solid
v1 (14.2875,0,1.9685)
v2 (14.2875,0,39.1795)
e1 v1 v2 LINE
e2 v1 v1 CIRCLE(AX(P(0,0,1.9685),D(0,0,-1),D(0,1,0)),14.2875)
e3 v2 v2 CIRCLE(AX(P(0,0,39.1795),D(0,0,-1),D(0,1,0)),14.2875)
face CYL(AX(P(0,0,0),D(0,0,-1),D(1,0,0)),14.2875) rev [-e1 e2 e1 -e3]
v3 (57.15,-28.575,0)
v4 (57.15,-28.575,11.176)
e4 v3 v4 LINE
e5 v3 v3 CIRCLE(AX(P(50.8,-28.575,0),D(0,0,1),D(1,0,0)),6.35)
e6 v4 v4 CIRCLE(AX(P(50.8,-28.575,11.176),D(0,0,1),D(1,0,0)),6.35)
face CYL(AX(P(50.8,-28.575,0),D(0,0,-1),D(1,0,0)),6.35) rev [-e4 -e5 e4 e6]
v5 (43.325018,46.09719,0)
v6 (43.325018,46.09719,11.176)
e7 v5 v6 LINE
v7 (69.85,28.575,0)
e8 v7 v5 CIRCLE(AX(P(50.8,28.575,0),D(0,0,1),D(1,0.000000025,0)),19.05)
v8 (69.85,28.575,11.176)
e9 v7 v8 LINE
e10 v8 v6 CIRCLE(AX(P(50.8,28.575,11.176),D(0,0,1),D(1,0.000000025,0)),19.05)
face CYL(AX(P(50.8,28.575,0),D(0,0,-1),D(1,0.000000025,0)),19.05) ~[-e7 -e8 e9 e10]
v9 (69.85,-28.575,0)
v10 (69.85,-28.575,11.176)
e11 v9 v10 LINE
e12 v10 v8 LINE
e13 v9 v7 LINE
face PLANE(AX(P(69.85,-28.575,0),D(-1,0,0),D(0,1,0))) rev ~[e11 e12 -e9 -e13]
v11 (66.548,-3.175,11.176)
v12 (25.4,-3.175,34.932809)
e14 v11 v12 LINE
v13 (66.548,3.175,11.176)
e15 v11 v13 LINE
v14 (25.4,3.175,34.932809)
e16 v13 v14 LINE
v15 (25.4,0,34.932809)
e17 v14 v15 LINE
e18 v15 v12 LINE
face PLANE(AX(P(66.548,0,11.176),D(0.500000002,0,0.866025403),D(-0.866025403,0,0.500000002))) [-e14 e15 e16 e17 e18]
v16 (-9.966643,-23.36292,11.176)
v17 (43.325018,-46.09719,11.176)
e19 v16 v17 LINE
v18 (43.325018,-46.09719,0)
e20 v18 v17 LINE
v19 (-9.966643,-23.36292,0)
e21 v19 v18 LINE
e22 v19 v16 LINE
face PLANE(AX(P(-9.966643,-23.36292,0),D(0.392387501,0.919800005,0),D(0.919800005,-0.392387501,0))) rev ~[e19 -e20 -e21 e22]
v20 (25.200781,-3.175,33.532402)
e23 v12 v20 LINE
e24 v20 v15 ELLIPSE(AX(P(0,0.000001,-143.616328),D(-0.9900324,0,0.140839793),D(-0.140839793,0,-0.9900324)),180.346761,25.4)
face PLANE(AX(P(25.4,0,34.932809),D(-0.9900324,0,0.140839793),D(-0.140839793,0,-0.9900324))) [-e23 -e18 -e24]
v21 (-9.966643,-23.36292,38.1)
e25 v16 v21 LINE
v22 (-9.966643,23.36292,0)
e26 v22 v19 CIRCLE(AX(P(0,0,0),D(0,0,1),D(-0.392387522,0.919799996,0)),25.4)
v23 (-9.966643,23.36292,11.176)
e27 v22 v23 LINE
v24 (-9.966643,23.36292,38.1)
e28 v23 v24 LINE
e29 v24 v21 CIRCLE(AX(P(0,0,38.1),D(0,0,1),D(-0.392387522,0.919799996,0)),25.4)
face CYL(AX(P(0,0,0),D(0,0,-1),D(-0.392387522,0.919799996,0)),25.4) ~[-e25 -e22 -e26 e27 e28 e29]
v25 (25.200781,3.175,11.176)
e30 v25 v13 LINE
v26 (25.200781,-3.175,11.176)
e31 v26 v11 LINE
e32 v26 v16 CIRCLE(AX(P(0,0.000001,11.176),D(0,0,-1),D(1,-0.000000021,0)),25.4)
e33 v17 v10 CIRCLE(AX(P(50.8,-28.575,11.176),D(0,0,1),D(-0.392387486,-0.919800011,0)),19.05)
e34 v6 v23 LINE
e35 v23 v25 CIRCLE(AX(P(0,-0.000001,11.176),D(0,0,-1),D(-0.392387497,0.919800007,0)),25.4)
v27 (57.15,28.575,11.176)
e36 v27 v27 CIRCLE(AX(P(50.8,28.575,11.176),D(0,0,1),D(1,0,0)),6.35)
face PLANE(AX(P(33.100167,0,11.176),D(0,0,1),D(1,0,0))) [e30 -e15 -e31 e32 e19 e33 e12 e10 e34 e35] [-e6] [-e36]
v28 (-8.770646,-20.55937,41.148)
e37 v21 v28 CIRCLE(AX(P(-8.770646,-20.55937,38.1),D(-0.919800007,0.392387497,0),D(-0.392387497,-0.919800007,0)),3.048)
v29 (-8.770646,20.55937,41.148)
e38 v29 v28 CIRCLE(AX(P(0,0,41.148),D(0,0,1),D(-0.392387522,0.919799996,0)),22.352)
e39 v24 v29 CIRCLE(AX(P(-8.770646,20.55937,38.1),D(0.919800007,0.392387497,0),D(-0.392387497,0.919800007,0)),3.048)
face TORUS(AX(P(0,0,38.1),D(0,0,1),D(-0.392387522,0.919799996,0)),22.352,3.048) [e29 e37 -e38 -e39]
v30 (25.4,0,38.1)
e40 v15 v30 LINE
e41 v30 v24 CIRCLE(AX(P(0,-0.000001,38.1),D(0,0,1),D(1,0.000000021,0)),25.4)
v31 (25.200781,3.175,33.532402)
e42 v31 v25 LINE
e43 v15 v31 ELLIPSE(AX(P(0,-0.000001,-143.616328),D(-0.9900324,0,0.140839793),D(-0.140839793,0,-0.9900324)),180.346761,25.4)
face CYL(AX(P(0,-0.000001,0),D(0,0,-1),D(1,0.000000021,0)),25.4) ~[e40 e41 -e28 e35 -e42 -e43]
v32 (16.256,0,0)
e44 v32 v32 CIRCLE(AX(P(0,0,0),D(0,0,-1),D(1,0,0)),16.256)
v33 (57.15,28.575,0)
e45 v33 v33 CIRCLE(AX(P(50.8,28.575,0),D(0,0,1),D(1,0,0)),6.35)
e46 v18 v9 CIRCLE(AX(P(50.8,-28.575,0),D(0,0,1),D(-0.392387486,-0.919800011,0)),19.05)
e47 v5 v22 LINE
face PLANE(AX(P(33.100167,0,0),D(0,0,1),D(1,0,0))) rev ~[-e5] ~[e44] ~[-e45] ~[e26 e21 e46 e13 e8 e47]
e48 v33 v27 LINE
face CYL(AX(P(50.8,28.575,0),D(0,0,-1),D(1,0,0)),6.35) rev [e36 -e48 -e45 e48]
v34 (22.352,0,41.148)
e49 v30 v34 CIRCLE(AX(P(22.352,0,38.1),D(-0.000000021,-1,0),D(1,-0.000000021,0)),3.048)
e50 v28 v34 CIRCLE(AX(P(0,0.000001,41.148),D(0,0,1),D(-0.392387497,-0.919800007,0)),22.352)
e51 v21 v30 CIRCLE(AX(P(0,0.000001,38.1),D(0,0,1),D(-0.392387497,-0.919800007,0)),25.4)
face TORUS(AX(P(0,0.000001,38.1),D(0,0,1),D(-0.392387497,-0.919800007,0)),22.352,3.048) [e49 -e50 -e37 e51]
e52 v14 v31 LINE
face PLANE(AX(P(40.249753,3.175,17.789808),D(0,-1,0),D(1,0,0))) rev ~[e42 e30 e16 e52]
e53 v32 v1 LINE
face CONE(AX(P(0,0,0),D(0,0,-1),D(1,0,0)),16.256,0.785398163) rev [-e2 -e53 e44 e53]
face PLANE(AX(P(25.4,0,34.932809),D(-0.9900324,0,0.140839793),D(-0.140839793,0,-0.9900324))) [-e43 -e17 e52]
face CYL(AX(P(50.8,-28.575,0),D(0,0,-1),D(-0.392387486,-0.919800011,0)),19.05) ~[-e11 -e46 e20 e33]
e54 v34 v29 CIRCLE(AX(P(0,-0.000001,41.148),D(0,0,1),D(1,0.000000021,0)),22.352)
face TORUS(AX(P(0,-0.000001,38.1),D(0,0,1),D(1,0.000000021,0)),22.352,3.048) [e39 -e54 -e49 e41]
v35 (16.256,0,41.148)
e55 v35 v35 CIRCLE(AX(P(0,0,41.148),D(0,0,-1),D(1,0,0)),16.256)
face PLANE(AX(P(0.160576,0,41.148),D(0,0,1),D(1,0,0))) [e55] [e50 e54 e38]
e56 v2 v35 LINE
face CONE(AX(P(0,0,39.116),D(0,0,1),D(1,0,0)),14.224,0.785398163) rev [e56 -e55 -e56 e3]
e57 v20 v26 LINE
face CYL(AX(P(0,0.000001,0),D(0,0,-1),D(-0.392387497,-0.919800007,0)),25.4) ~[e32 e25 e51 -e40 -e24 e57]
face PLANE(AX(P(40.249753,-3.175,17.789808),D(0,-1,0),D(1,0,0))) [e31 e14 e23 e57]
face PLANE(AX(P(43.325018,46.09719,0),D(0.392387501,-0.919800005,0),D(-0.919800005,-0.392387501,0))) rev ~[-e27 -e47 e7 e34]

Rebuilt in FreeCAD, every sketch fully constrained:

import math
import FreeCAD as App
import Part
import Sketcher
from FreeCAD import Vector
Q = App.Units.Quantity


def edges_at(feature, points):
    """Names of the edges that pass closest to the given points."""
    edges = feature.Shape.Edges
    near = lambda p: min(range(len(edges)), key=lambda i: edges[i].distToShape(Part.Vertex(*p))[0])
    return sorted({f"Edge{near(p) + 1}" for p in points})

doc = App.newDocument("Part")
body = doc.addObject("PartDesign::Body", "Body")

sketch1 = body.newObject("Sketcher::SketchObject", "Sketch")
sketch1.AttachmentSupport = (doc.getObject("XY_Plane"), [""])
sketch1.MapMode = "FlatFace"
sketch1.addGeometry([
    Part.ArcOfCircle(Part.Circle(Vector(0, 0, 0), Vector(0, 0, 1), 25), math.radians(-113), math.radians(0)),
    Part.ArcOfCircle(Part.Circle(Vector(0, 0, 0), Vector(0, 0, 1), 25), math.radians(0), math.radians(113)),
    Part.ArcOfCircle(Part.Circle(Vector(0, 0, 0), Vector(0, 0, 1), 25), math.radians(113), math.radians(247)),
    Part.Circle(Vector(0, 0, 0), Vector(0, 0, 1), 14),
], False)
sketch1.addConstraint([
    Sketcher.Constraint("Tangent", 0, 2, 1, 1),
    Sketcher.Constraint("Tangent", 1, 2, 2, 1),
    Sketcher.Constraint("Tangent", 2, 2, 0, 1),
    Sketcher.Constraint("Coincident", 0, 3, -1, 1),
    Sketcher.Constraint("Coincident", 3, 3, -1, 1),
    Sketcher.Constraint("PointOnObject", 0, 2, -1),
    Sketcher.Constraint("Vertical", 1, 2, 2, 2),
    Sketcher.Constraint("Radius", 0, Q("1 in")),
    Sketcher.Constraint("Diameter", 3, Q("1.125 in")),
    Sketcher.Constraint("DistanceY", -1, 1, 1, 2, Q("0.9198 in")),
])
pad1 = body.newObject("PartDesign::Pad", "Pad")
pad1.Profile = sketch1
pad1.Length = Q("1.62 in")

sketch2 = body.newObject("Sketcher::SketchObject", "Sketch001")
sketch2.AttachmentSupport = (doc.getObject("XY_Plane"), [""])
sketch2.MapMode = "FlatFace"
sketch2.addGeometry([
    Part.ArcOfCircle(Part.Circle(Vector(0, 0, 0), Vector(0, 0, 1), 25), math.radians(0), math.radians(113)),
    Part.ArcOfCircle(Part.Circle(Vector(0, 0, 0), Vector(0, 0, 1), 25), math.radians(-113), math.radians(0)),
    Part.LineSegment(Vector(-10, -23, 0), Vector(43, -46, 0)),
    Part.ArcOfCircle(Part.Circle(Vector(51, -29, 0), Vector(0, 0, 1), 19), math.radians(-113), math.radians(0)),
    Part.LineSegment(Vector(70, -29, 0), Vector(70, 29, 0)),
    Part.ArcOfCircle(Part.Circle(Vector(51, 29, 0), Vector(0, 0, 1), 19), math.radians(0), math.radians(113)),
    Part.LineSegment(Vector(43, 46, 0), Vector(-10, 23, 0)),
    Part.Circle(Vector(51, -29, 0), Vector(0, 0, 1), 6),
    Part.Circle(Vector(51, 29, 0), Vector(0, 0, 1), 6),
], False)
sketch2.addConstraint([
    Sketcher.Constraint("Tangent", 0, 1, 1, 2),
    Sketcher.Constraint("Tangent", 1, 1, 2, 1),
    Sketcher.Constraint("Tangent", 2, 2, 3, 1),
    Sketcher.Constraint("Tangent", 3, 2, 4, 1),
    Sketcher.Constraint("Tangent", 4, 2, 5, 1),
    Sketcher.Constraint("Tangent", 5, 2, 6, 1),
    Sketcher.Constraint("Tangent", 6, 2, 0, 2),
    Sketcher.Constraint("Vertical", 4),
    Sketcher.Constraint("Coincident", 0, 3, -1, 1),
    Sketcher.Constraint("Coincident", 7, 3, 3, 3),
    Sketcher.Constraint("Coincident", 8, 3, 5, 3),
    Sketcher.Constraint("Equal", 0, 1),
    Sketcher.Constraint("Equal", 3, 5),
    Sketcher.Constraint("Equal", 7, 8),
    Sketcher.Constraint("PointOnObject", 0, 1, -1),
    Sketcher.Constraint("Vertical", 2, 2, 5, 2),
    Sketcher.Constraint("Radius", 0, Q("1 in")),
    Sketcher.Constraint("Diameter", 7, Q("0.5 in")),
    Sketcher.Constraint("Radius", 3, Q("0.75 in")),
    Sketcher.Constraint("DistanceX", -1, 1, 3, 3, Q("2 in")),
    Sketcher.Constraint("DistanceY", 4, 1, 4, 2, Q("2.25 in")),
])
pad2 = body.newObject("PartDesign::Pad", "Pad001")
pad2.Profile = sketch2
pad2.Length = Q("0.44 in")

sketch3 = body.newObject("Sketcher::SketchObject", "Sketch002")
sketch3.AttachmentSupport = (doc.getObject("XZ_Plane"), [""])
sketch3.MapMode = "FlatFace"
sketch3.addGeometry([
    Part.LineSegment(Vector(0, 41.1, 0), Vector(0, 0, 0)),
    Part.LineSegment(Vector(0, 0, 0), Vector(16.3, 0, 0)),
    Part.LineSegment(Vector(16.3, 0, 0), Vector(14.2, 2, 0)),
    Part.LineSegment(Vector(14.2, 2, 0), Vector(14.2, 39.1, 0)),
    Part.LineSegment(Vector(14.2, 39.1, 0), Vector(16.3, 41.1, 0)),
    Part.LineSegment(Vector(16.3, 41.1, 0), Vector(0, 41.1, 0)),
], False)
sketch3.addConstraint([
    Sketcher.Constraint("Coincident", 0, 2, 1, 1),
    Sketcher.Constraint("Coincident", 1, 2, 2, 1),
    Sketcher.Constraint("Coincident", 2, 2, 3, 1),
    Sketcher.Constraint("Coincident", 3, 2, 4, 1),
    Sketcher.Constraint("Coincident", 4, 2, 5, 1),
    Sketcher.Constraint("Coincident", 5, 2, 0, 1),
    Sketcher.Constraint("Vertical", 0),
    Sketcher.Constraint("Horizontal", 1),
    Sketcher.Constraint("Vertical", 3),
    Sketcher.Constraint("Horizontal", 5),
    Sketcher.Constraint("Coincident", 0, 2, -1, 1),
    Sketcher.Constraint("Perpendicular", 2, 4),
    Sketcher.Constraint("Vertical", 1, 2, 4, 2),
    Sketcher.Constraint("Equal", 2, 4),
    Sketcher.Constraint("DistanceX", 1, 1, 1, 2, Q("0.64 in")),
    Sketcher.Constraint("DistanceY", 0, 2, 0, 1, Q("1.62 in")),
    Sketcher.Constraint("DistanceY", 3, 1, 3, 2, Q("1.46 in")),
])
groove = body.newObject("PartDesign::Groove", "Groove")
groove.Profile = sketch3
groove.ReferenceAxis = (sketch3, ["V_Axis"])
groove.Angle = 360

sketch4 = body.newObject("Sketcher::SketchObject", "Sketch003")
sketch4.AttachmentSupport = (doc.getObject("XZ_Plane"), [""])
sketch4.MapMode = "FlatFace"
sketch4.addGeometry([
    Part.LineSegment(Vector(67, 11, 0), Vector(25, 35, 0)),
    Part.LineSegment(Vector(25, 35, 0), Vector(22, 9, 0)),
    Part.LineSegment(Vector(22, 9, 0), Vector(67, 11, 0)),
], False)
sketch4.addConstraint([
    Sketcher.Constraint("Coincident", 0, 2, 1, 1),
    Sketcher.Constraint("Coincident", 1, 2, 2, 1),
    Sketcher.Constraint("Coincident", 2, 2, 0, 1),
    Sketcher.Constraint("DistanceX", -1, 1, 0, 2, Q("1 in")),
    Sketcher.Constraint("Angle", 0, Q("150 deg")),
    Sketcher.Constraint("DistanceX", -1, 1, 2, 2, Q("2.62 in")),
    Sketcher.Constraint("DistanceY", -1, 1, 2, 2, Q("0.44 in")),
    Sketcher.Constraint("Distance", 1, Q("26.615539 mm")),
    Sketcher.Constraint("Distance", 2, Q("44.971369 mm")),
])
pad3 = body.newObject("PartDesign::Pad", "Pad002")
pad3.Profile = sketch4
pad3.Length = Q("0.25 in")
pad3.Midplane = True
doc.recompute()

fillet = body.newObject("PartDesign::Fillet", "Fillet")
fillet.Base = (pad3, edges_at(pad3, [(14, -21.193, 41.148)]))
fillet.Radius = Q("0.12 in")

doc.recompute()
